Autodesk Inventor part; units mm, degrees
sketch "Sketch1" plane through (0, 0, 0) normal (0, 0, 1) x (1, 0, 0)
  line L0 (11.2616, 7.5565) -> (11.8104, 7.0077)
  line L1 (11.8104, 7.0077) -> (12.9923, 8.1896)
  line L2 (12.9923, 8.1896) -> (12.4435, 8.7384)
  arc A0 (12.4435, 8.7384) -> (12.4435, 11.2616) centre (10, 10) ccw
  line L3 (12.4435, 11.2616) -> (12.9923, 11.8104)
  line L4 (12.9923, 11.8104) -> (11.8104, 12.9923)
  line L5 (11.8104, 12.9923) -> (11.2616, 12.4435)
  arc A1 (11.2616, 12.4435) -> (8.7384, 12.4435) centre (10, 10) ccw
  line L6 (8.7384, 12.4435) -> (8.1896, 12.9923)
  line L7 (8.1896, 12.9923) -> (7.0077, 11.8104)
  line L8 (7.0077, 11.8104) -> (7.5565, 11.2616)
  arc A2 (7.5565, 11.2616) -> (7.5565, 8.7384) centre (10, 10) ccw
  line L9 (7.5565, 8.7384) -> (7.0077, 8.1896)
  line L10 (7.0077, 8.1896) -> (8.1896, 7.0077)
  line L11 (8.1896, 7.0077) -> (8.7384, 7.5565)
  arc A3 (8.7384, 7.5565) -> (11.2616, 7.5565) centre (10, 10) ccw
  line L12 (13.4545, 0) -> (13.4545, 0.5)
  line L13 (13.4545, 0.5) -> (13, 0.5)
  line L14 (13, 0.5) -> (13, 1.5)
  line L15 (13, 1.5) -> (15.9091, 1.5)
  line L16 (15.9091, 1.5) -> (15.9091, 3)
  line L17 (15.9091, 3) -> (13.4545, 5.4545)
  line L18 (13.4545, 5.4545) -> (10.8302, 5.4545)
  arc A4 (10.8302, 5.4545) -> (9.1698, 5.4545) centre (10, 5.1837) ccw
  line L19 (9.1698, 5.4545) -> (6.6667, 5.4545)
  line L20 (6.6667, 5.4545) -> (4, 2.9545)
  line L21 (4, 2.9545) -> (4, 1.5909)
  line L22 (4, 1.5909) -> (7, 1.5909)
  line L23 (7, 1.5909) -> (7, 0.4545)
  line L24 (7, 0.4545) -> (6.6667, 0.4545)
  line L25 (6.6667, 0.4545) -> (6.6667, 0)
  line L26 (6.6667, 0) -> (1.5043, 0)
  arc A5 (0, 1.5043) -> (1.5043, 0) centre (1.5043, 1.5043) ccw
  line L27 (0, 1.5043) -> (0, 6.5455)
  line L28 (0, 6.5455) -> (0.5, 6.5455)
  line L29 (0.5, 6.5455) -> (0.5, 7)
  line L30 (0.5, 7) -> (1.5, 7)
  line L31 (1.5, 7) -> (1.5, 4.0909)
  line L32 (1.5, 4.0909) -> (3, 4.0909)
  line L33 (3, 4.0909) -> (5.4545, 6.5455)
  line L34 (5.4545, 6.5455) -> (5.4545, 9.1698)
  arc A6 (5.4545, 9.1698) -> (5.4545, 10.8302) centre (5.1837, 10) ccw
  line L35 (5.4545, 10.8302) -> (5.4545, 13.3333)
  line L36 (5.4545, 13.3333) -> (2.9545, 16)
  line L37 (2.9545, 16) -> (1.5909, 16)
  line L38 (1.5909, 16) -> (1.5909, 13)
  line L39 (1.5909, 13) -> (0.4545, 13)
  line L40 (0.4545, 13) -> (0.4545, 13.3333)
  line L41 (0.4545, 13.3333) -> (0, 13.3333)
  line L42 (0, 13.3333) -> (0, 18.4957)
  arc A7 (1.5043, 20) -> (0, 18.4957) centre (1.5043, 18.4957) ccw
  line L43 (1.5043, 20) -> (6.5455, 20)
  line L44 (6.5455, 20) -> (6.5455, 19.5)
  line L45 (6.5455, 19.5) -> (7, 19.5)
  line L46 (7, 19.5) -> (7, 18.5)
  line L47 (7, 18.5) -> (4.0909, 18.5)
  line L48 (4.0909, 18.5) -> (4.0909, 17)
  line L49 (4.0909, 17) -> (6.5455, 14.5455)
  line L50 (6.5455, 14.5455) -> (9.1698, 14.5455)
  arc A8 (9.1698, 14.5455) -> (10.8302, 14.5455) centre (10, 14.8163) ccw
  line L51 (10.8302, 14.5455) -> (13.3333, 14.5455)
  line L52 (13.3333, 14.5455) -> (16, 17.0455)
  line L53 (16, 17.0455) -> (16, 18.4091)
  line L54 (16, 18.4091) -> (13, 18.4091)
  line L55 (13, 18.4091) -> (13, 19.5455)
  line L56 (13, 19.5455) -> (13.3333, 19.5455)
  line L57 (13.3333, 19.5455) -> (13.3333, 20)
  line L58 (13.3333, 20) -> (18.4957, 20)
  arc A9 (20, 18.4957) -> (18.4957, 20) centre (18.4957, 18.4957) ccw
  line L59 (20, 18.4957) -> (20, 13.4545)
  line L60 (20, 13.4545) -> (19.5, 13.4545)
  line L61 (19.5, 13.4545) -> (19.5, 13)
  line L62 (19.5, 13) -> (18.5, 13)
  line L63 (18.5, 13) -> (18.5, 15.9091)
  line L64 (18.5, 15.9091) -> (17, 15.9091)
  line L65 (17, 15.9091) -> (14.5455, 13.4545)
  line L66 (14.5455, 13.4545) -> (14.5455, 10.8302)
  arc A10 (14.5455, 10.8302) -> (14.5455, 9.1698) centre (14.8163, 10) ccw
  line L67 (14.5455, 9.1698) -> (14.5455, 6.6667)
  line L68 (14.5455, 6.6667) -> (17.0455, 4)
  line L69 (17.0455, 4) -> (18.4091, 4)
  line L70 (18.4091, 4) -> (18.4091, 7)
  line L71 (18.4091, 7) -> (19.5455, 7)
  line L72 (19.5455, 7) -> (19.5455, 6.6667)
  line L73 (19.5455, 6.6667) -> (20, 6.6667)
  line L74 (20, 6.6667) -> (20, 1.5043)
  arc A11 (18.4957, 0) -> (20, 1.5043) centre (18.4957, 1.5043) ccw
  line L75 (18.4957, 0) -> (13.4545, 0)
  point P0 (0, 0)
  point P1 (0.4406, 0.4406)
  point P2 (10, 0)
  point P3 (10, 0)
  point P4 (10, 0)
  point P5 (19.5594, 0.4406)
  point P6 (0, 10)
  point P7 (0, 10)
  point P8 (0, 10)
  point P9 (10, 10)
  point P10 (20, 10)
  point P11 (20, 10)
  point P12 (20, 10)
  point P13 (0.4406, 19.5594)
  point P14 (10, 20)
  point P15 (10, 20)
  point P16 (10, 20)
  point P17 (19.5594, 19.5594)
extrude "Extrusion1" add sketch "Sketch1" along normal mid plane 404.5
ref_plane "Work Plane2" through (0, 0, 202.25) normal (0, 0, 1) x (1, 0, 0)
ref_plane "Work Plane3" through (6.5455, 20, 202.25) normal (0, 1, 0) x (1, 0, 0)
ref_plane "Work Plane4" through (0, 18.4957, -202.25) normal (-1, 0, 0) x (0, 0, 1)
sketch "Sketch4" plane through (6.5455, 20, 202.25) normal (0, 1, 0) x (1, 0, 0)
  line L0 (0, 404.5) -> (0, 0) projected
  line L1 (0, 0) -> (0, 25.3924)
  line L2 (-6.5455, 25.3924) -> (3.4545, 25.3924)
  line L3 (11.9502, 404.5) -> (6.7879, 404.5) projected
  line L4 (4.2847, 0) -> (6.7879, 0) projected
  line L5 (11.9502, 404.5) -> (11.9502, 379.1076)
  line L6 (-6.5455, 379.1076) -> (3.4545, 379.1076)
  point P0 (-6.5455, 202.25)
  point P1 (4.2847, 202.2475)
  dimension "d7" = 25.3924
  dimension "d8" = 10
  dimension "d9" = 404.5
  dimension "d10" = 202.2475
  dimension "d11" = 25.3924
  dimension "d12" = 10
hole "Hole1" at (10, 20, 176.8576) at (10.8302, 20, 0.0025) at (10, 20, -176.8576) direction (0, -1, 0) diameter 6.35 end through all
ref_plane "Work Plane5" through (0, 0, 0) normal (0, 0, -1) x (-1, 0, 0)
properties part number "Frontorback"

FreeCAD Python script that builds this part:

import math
import FreeCAD as App
import Part
import Sketcher
Q = App.Units.Quantity

doc = App.newDocument("Part")
body = doc.addObject("PartDesign::Body", "Body")

# Sketch on XY plane
sketch1 = body.newObject("Sketcher::SketchObject", "Sketch")
sketch1.AttachmentSupport = (doc.getObject("XY_Plane"), [""])
sketch1.MapMode = "FlatFace"
sketch1.addGeometry(Part.LineSegment(App.Vector(13.45, 0.5, 0), App.Vector(13.45, 0, 0)), False)
sketch1.addGeometry(Part.LineSegment(App.Vector(13.45, 0, 0), App.Vector(18.5, 0, 0)), False)
sketch1.addGeometry(Part.ArcOfCircle(Part.Circle(App.Vector(18.5, 1.5, 0), App.Vector(0, 0, 1), 1.5), math.radians(-90), math.radians(0)), False)
sketch1.addGeometry(Part.LineSegment(App.Vector(20, 1.5, 0), App.Vector(20, 6.67, 0)), False)
sketch1.addGeometry(Part.LineSegment(App.Vector(20, 6.67, 0), App.Vector(19.55, 6.67, 0)), False)
sketch1.addGeometry(Part.LineSegment(App.Vector(19.55, 6.67, 0), App.Vector(19.55, 7, 0)), False)
sketch1.addGeometry(Part.LineSegment(App.Vector(19.55, 7, 0), App.Vector(18.41, 7, 0)), False)
sketch1.addGeometry(Part.LineSegment(App.Vector(18.41, 7, 0), App.Vector(18.41, 4, 0)), False)
sketch1.addGeometry(Part.LineSegment(App.Vector(18.41, 4, 0), App.Vector(17.05, 4, 0)), False)
sketch1.addGeometry(Part.LineSegment(App.Vector(17.05, 4, 0), App.Vector(14.55, 6.67, 0)), False)
sketch1.addGeometry(Part.LineSegment(App.Vector(14.55, 6.67, 0), App.Vector(14.55, 9.17, 0)), False)
sketch1.addGeometry(Part.ArcOfCircle(Part.Circle(App.Vector(14.82, 10, 0), App.Vector(0, 0, 1), 0.87), math.radians(108), math.radians(252)), False)
sketch1.addGeometry(Part.LineSegment(App.Vector(14.55, 10.83, 0), App.Vector(14.55, 13.45, 0)), False)
sketch1.addGeometry(Part.LineSegment(App.Vector(14.55, 13.45, 0), App.Vector(17, 15.91, 0)), False)
sketch1.addGeometry(Part.LineSegment(App.Vector(17, 15.91, 0), App.Vector(18.5, 15.91, 0)), False)
sketch1.addGeometry(Part.LineSegment(App.Vector(18.5, 15.91, 0), App.Vector(18.5, 13, 0)), False)
sketch1.addGeometry(Part.LineSegment(App.Vector(18.5, 13, 0), App.Vector(19.5, 13, 0)), False)
sketch1.addGeometry(Part.LineSegment(App.Vector(19.5, 13, 0), App.Vector(19.5, 13.45, 0)), False)
sketch1.addGeometry(Part.LineSegment(App.Vector(19.5, 13.45, 0), App.Vector(20, 13.45, 0)), False)
sketch1.addGeometry(Part.LineSegment(App.Vector(20, 13.45, 0), App.Vector(20, 18.5, 0)), False)
sketch1.addGeometry(Part.ArcOfCircle(Part.Circle(App.Vector(18.5, 18.5, 0), App.Vector(0, 0, 1), 1.5), math.radians(0), math.radians(90)), False)
sketch1.addGeometry(Part.LineSegment(App.Vector(18.5, 20, 0), App.Vector(13.33, 20, 0)), False)
sketch1.addGeometry(Part.LineSegment(App.Vector(13.33, 20, 0), App.Vector(13.33, 19.55, 0)), False)
sketch1.addGeometry(Part.LineSegment(App.Vector(13.33, 19.55, 0), App.Vector(13, 19.55, 0)), False)
sketch1.addGeometry(Part.LineSegment(App.Vector(13, 19.55, 0), App.Vector(13, 18.41, 0)), False)
sketch1.addGeometry(Part.LineSegment(App.Vector(13, 18.41, 0), App.Vector(16, 18.41, 0)), False)
sketch1.addGeometry(Part.LineSegment(App.Vector(16, 18.41, 0), App.Vector(16, 17.05, 0)), False)
sketch1.addGeometry(Part.LineSegment(App.Vector(16, 17.05, 0), App.Vector(13.33, 14.55, 0)), False)
sketch1.addGeometry(Part.LineSegment(App.Vector(13.33, 14.55, 0), App.Vector(10.83, 14.55, 0)), False)
sketch1.addGeometry(Part.ArcOfCircle(Part.Circle(App.Vector(10, 14.82, 0), App.Vector(0, 0, 1), 0.87), math.radians(-162), math.radians(-18)), False)
sketch1.addGeometry(Part.LineSegment(App.Vector(9.17, 14.55, 0), App.Vector(6.55, 14.55, 0)), False)
sketch1.addGeometry(Part.LineSegment(App.Vector(6.55, 14.55, 0), App.Vector(4.09, 17, 0)), False)
sketch1.addGeometry(Part.LineSegment(App.Vector(4.09, 17, 0), App.Vector(4.09, 18.5, 0)), False)
sketch1.addGeometry(Part.LineSegment(App.Vector(4.09, 18.5, 0), App.Vector(7, 18.5, 0)), False)
sketch1.addGeometry(Part.LineSegment(App.Vector(7, 18.5, 0), App.Vector(7, 19.5, 0)), False)
sketch1.addGeometry(Part.LineSegment(App.Vector(7, 19.5, 0), App.Vector(6.55, 19.5, 0)), False)
sketch1.addGeometry(Part.LineSegment(App.Vector(6.55, 19.5, 0), App.Vector(6.55, 20, 0)), False)
sketch1.addGeometry(Part.LineSegment(App.Vector(6.55, 20, 0), App.Vector(1.5, 20, 0)), False)
sketch1.addGeometry(Part.ArcOfCircle(Part.Circle(App.Vector(1.5, 18.5, 0), App.Vector(0, 0, 1), 1.5), math.radians(90), math.radians(180)), False)
sketch1.addGeometry(Part.LineSegment(App.Vector(0, 18.5, 0), App.Vector(0, 13.33, 0)), False)
sketch1.addGeometry(Part.LineSegment(App.Vector(0, 13.33, 0), App.Vector(0.45, 13.33, 0)), False)
sketch1.addGeometry(Part.LineSegment(App.Vector(0.45, 13.33, 0), App.Vector(0.45, 13, 0)), False)
sketch1.addGeometry(Part.LineSegment(App.Vector(0.45, 13, 0), App.Vector(1.59, 13, 0)), False)
sketch1.addGeometry(Part.LineSegment(App.Vector(1.59, 13, 0), App.Vector(1.59, 16, 0)), False)
sketch1.addGeometry(Part.LineSegment(App.Vector(1.59, 16, 0), App.Vector(2.95, 16, 0)), False)
sketch1.addGeometry(Part.LineSegment(App.Vector(2.95, 16, 0), App.Vector(5.45, 13.33, 0)), False)
sketch1.addGeometry(Part.LineSegment(App.Vector(5.45, 13.33, 0), App.Vector(5.45, 10.83, 0)), False)
sketch1.addGeometry(Part.ArcOfCircle(Part.Circle(App.Vector(5.18, 10, 0), App.Vector(0, 0, 1), 0.87), math.radians(-72), math.radians(72)), False)
sketch1.addGeometry(Part.LineSegment(App.Vector(5.45, 9.17, 0), App.Vector(5.45, 6.55, 0)), False)
sketch1.addGeometry(Part.LineSegment(App.Vector(5.45, 6.55, 0), App.Vector(3, 4.09, 0)), False)
sketch1.addGeometry(Part.LineSegment(App.Vector(3, 4.09, 0), App.Vector(1.5, 4.09, 0)), False)
sketch1.addGeometry(Part.LineSegment(App.Vector(1.5, 4.09, 0), App.Vector(1.5, 7, 0)), False)
sketch1.addGeometry(Part.LineSegment(App.Vector(1.5, 7, 0), App.Vector(0.5, 7, 0)), False)
sketch1.addGeometry(Part.LineSegment(App.Vector(0.5, 7, 0), App.Vector(0.5, 6.55, 0)), False)
sketch1.addGeometry(Part.LineSegment(App.Vector(0.5, 6.55, 0), App.Vector(0, 6.55, 0)), False)
sketch1.addGeometry(Part.LineSegment(App.Vector(0, 6.55, 0), App.Vector(0, 1.5, 0)), False)
sketch1.addGeometry(Part.ArcOfCircle(Part.Circle(App.Vector(1.5, 1.5, 0), App.Vector(0, 0, 1), 1.5), math.radians(180), math.radians(270)), False)
sketch1.addGeometry(Part.LineSegment(App.Vector(1.5, 0, 0), App.Vector(6.67, 0, 0)), False)
sketch1.addGeometry(Part.LineSegment(App.Vector(6.67, 0, 0), App.Vector(6.67, 0.45, 0)), False)
sketch1.addGeometry(Part.LineSegment(App.Vector(6.67, 0.45, 0), App.Vector(7, 0.45, 0)), False)
sketch1.addGeometry(Part.LineSegment(App.Vector(7, 0.45, 0), App.Vector(7, 1.59, 0)), False)
sketch1.addGeometry(Part.LineSegment(App.Vector(7, 1.59, 0), App.Vector(4, 1.59, 0)), False)
sketch1.addGeometry(Part.LineSegment(App.Vector(4, 1.59, 0), App.Vector(4, 2.95, 0)), False)
sketch1.addGeometry(Part.LineSegment(App.Vector(4, 2.95, 0), App.Vector(6.67, 5.45, 0)), False)
sketch1.addGeometry(Part.LineSegment(App.Vector(6.67, 5.45, 0), App.Vector(9.17, 5.45, 0)), False)
sketch1.addGeometry(Part.ArcOfCircle(Part.Circle(App.Vector(10, 5.18, 0), App.Vector(0, 0, 1), 0.87), math.radians(18), math.radians(162)), False)
sketch1.addGeometry(Part.LineSegment(App.Vector(10.83, 5.45, 0), App.Vector(13.45, 5.45, 0)), False)
sketch1.addGeometry(Part.LineSegment(App.Vector(13.45, 5.45, 0), App.Vector(15.91, 3, 0)), False)
sketch1.addGeometry(Part.LineSegment(App.Vector(15.91, 3, 0), App.Vector(15.91, 1.5, 0)), False)
sketch1.addGeometry(Part.LineSegment(App.Vector(15.91, 1.5, 0), App.Vector(13, 1.5, 0)), False)
sketch1.addGeometry(Part.LineSegment(App.Vector(13, 1.5, 0), App.Vector(13, 0.5, 0)), False)
sketch1.addGeometry(Part.LineSegment(App.Vector(13, 0.5, 0), App.Vector(13.45, 0.5, 0)), False)
sketch1.addGeometry(Part.LineSegment(App.Vector(11.81, 7.01, 0), App.Vector(11.26, 7.56, 0)), False)
sketch1.addGeometry(Part.ArcOfCircle(Part.Circle(App.Vector(10, 10, 0), App.Vector(0, 0, 1), 2.75), math.radians(-117), math.radians(-63)), False)
sketch1.addGeometry(Part.LineSegment(App.Vector(8.74, 7.56, 0), App.Vector(8.19, 7.01, 0)), False)
sketch1.addGeometry(Part.LineSegment(App.Vector(8.19, 7.01, 0), App.Vector(7.01, 8.19, 0)), False)
sketch1.addGeometry(Part.LineSegment(App.Vector(7.01, 8.19, 0), App.Vector(7.56, 8.74, 0)), False)
sketch1.addGeometry(Part.ArcOfCircle(Part.Circle(App.Vector(10, 10, 0), App.Vector(0, 0, 1), 2.75), math.radians(153), math.radians(207)), False)
sketch1.addGeometry(Part.LineSegment(App.Vector(7.56, 11.26, 0), App.Vector(7.01, 11.81, 0)), False)
sketch1.addGeometry(Part.LineSegment(App.Vector(7.01, 11.81, 0), App.Vector(8.19, 12.99, 0)), False)
sketch1.addGeometry(Part.LineSegment(App.Vector(8.19, 12.99, 0), App.Vector(8.74, 12.44, 0)), False)
sketch1.addGeometry(Part.ArcOfCircle(Part.Circle(App.Vector(10, 10, 0), App.Vector(0, 0, 1), 2.75), math.radians(63), math.radians(117)), False)
sketch1.addGeometry(Part.LineSegment(App.Vector(11.26, 12.44, 0), App.Vector(11.81, 12.99, 0)), False)
sketch1.addGeometry(Part.LineSegment(App.Vector(11.81, 12.99, 0), App.Vector(12.99, 11.81, 0)), False)
sketch1.addGeometry(Part.LineSegment(App.Vector(12.99, 11.81, 0), App.Vector(12.44, 11.26, 0)), False)
sketch1.addGeometry(Part.ArcOfCircle(Part.Circle(App.Vector(10, 10, 0), App.Vector(0, 0, 1), 2.75), math.radians(-27), math.radians(27)), False)
sketch1.addGeometry(Part.LineSegment(App.Vector(12.44, 8.74, 0), App.Vector(12.99, 8.19, 0)), False)
sketch1.addGeometry(Part.LineSegment(App.Vector(12.99, 8.19, 0), App.Vector(11.81, 7.01, 0)), False)
sketch1.addConstraint(Sketcher.Constraint("Coincident", 0, 2, 1, 1))
sketch1.addConstraint(Sketcher.Constraint("Tangent", 1, 2, 2, 1))
sketch1.addConstraint(Sketcher.Constraint("Tangent", 2, 2, 3, 1))
sketch1.addConstraint(Sketcher.Constraint("Coincident", 3, 2, 4, 1))
sketch1.addConstraint(Sketcher.Constraint("Coincident", 4, 2, 5, 1))
sketch1.addConstraint(Sketcher.Constraint("Coincident", 5, 2, 6, 1))
sketch1.addConstraint(Sketcher.Constraint("Coincident", 6, 2, 7, 1))
sketch1.addConstraint(Sketcher.Constraint("Coincident", 7, 2, 8, 1))
sketch1.addConstraint(Sketcher.Constraint("Coincident", 8, 2, 9, 1))
sketch1.addConstraint(Sketcher.Constraint("Coincident", 9, 2, 10, 1))
sketch1.addConstraint(Sketcher.Constraint("Coincident", 10, 2, 11, 2))
sketch1.addConstraint(Sketcher.Constraint("Coincident", 11, 1, 12, 1))
sketch1.addConstraint(Sketcher.Constraint("Coincident", 12, 2, 13, 1))
sketch1.addConstraint(Sketcher.Constraint("Coincident", 13, 2, 14, 1))
sketch1.addConstraint(Sketcher.Constraint("Coincident", 14, 2, 15, 1))
sketch1.addConstraint(Sketcher.Constraint("Coincident", 15, 2, 16, 1))
sketch1.addConstraint(Sketcher.Constraint("Coincident", 16, 2, 17, 1))
sketch1.addConstraint(Sketcher.Constraint("Coincident", 17, 2, 18, 1))
sketch1.addConstraint(Sketcher.Constraint("Coincident", 18, 2, 19, 1))
sketch1.addConstraint(Sketcher.Constraint("Tangent", 19, 2, 20, 1))
sketch1.addConstraint(Sketcher.Constraint("Tangent", 20, 2, 21, 1))
sketch1.addConstraint(Sketcher.Constraint("Coincident", 21, 2, 22, 1))
sketch1.addConstraint(Sketcher.Constraint("Coincident", 22, 2, 23, 1))
sketch1.addConstraint(Sketcher.Constraint("Coincident", 23, 2, 24, 1))
sketch1.addConstraint(Sketcher.Constraint("Coincident", 24, 2, 25, 1))
sketch1.addConstraint(Sketcher.Constraint("Coincident", 25, 2, 26, 1))
sketch1.addConstraint(Sketcher.Constraint("Coincident", 26, 2, 27, 1))
sketch1.addConstraint(Sketcher.Constraint("Coincident", 27, 2, 28, 1))
sketch1.addConstraint(Sketcher.Constraint("Coincident", 28, 2, 29, 2))
sketch1.addConstraint(Sketcher.Constraint("Coincident", 29, 1, 30, 1))
sketch1.addConstraint(Sketcher.Constraint("Coincident", 30, 2, 31, 1))
sketch1.addConstraint(Sketcher.Constraint("Coincident", 31, 2, 32, 1))
sketch1.addConstraint(Sketcher.Constraint("Coincident", 32, 2, 33, 1))
sketch1.addConstraint(Sketcher.Constraint("Coincident", 33, 2, 34, 1))
sketch1.addConstraint(Sketcher.Constraint("Coincident", 34, 2, 35, 1))
sketch1.addConstraint(Sketcher.Constraint("Coincident", 35, 2, 36, 1))
sketch1.addConstraint(Sketcher.Constraint("Coincident", 36, 2, 37, 1))
sketch1.addConstraint(Sketcher.Constraint("Tangent", 37, 2, 38, 1))
sketch1.addConstraint(Sketcher.Constraint("Tangent", 38, 2, 39, 1))
sketch1.addConstraint(Sketcher.Constraint("Coincident", 39, 2, 40, 1))
sketch1.addConstraint(Sketcher.Constraint("Coincident", 40, 2, 41, 1))
sketch1.addConstraint(Sketcher.Constraint("Coincident", 41, 2, 42, 1))
sketch1.addConstraint(Sketcher.Constraint("Coincident", 42, 2, 43, 1))
sketch1.addConstraint(Sketcher.Constraint("Coincident", 43, 2, 44, 1))
sketch1.addConstraint(Sketcher.Constraint("Coincident", 44, 2, 45, 1))
sketch1.addConstraint(Sketcher.Constraint("Coincident", 45, 2, 46, 1))
sketch1.addConstraint(Sketcher.Constraint("Coincident", 46, 2, 47, 2))
sketch1.addConstraint(Sketcher.Constraint("Coincident", 47, 1, 48, 1))
sketch1.addConstraint(Sketcher.Constraint("Coincident", 48, 2, 49, 1))
sketch1.addConstraint(Sketcher.Constraint("Coincident", 49, 2, 50, 1))
sketch1.addConstraint(Sketcher.Constraint("Coincident", 50, 2, 51, 1))
sketch1.addConstraint(Sketcher.Constraint("Coincident", 51, 2, 52, 1))
sketch1.addConstraint(Sketcher.Constraint("Coincident", 52, 2, 53, 1))
sketch1.addConstraint(Sketcher.Constraint("Coincident", 53, 2, 54, 1))
sketch1.addConstraint(Sketcher.Constraint("Coincident", 54, 2, 55, 1))
sketch1.addConstraint(Sketcher.Constraint("Tangent", 55, 2, 56, 1))
sketch1.addConstraint(Sketcher.Constraint("Tangent", 56, 2, 57, 1))
sketch1.addConstraint(Sketcher.Constraint("Coincident", 57, 2, 58, 1))
sketch1.addConstraint(Sketcher.Constraint("Coincident", 58, 2, 59, 1))
sketch1.addConstraint(Sketcher.Constraint("Coincident", 59, 2, 60, 1))
sketch1.addConstraint(Sketcher.Constraint("Coincident", 60, 2, 61, 1))
sketch1.addConstraint(Sketcher.Constraint("Coincident", 61, 2, 62, 1))
sketch1.addConstraint(Sketcher.Constraint("Coincident", 62, 2, 63, 1))
sketch1.addConstraint(Sketcher.Constraint("Coincident", 63, 2, 64, 1))
sketch1.addConstraint(Sketcher.Constraint("Coincident", 64, 2, 65, 2))
sketch1.addConstraint(Sketcher.Constraint("Coincident", 65, 1, 66, 1))
sketch1.addConstraint(Sketcher.Constraint("Coincident", 66, 2, 67, 1))
sketch1.addConstraint(Sketcher.Constraint("Coincident", 67, 2, 68, 1))
sketch1.addConstraint(Sketcher.Constraint("Coincident", 68, 2, 69, 1))
sketch1.addConstraint(Sketcher.Constraint("Coincident", 69, 2, 70, 1))
sketch1.addConstraint(Sketcher.Constraint("Coincident", 70, 2, 71, 1))
sketch1.addConstraint(Sketcher.Constraint("Coincident", 71, 2, 0, 1))
sketch1.addConstraint(Sketcher.Constraint("Coincident", 72, 2, 73, 2))
sketch1.addConstraint(Sketcher.Constraint("Coincident", 73, 1, 74, 1))
sketch1.addConstraint(Sketcher.Constraint("Coincident", 74, 2, 75, 1))
sketch1.addConstraint(Sketcher.Constraint("Coincident", 75, 2, 76, 1))
sketch1.addConstraint(Sketcher.Constraint("Coincident", 76, 2, 77, 2))
sketch1.addConstraint(Sketcher.Constraint("Coincident", 77, 1, 78, 1))
sketch1.addConstraint(Sketcher.Constraint("Coincident", 78, 2, 79, 1))
sketch1.addConstraint(Sketcher.Constraint("Coincident", 79, 2, 80, 1))
sketch1.addConstraint(Sketcher.Constraint("Coincident", 80, 2, 81, 2))
sketch1.addConstraint(Sketcher.Constraint("Coincident", 81, 1, 82, 1))
sketch1.addConstraint(Sketcher.Constraint("Coincident", 82, 2, 83, 1))
sketch1.addConstraint(Sketcher.Constraint("Coincident", 83, 2, 84, 1))
sketch1.addConstraint(Sketcher.Constraint("Coincident", 84, 2, 85, 2))
sketch1.addConstraint(Sketcher.Constraint("Coincident", 85, 1, 86, 1))
sketch1.addConstraint(Sketcher.Constraint("Coincident", 86, 2, 87, 1))
sketch1.addConstraint(Sketcher.Constraint("Coincident", 87, 2, 72, 1))
sketch1.addConstraint(Sketcher.Constraint("Vertical", 0))
sketch1.addConstraint(Sketcher.Constraint("Horizontal", 1))
sketch1.addConstraint(Sketcher.Constraint("Vertical", 3))
sketch1.addConstraint(Sketcher.Constraint("Horizontal", 4))
sketch1.addConstraint(Sketcher.Constraint("Vertical", 5))
sketch1.addConstraint(Sketcher.Constraint("Horizontal", 6))
sketch1.addConstraint(Sketcher.Constraint("Vertical", 7))
sketch1.addConstraint(Sketcher.Constraint("Horizontal", 8))
sketch1.addConstraint(Sketcher.Constraint("Vertical", 10))
sketch1.addConstraint(Sketcher.Constraint("Vertical", 12))
sketch1.addConstraint(Sketcher.Constraint("Horizontal", 14))
sketch1.addConstraint(Sketcher.Constraint("Vertical", 15))
sketch1.addConstraint(Sketcher.Constraint("Horizontal", 16))
sketch1.addConstraint(Sketcher.Constraint("Vertical", 17))
sketch1.addConstraint(Sketcher.Constraint("Horizontal", 18))
sketch1.addConstraint(Sketcher.Constraint("Vertical", 19))
sketch1.addConstraint(Sketcher.Constraint("Horizontal", 21))
sketch1.addConstraint(Sketcher.Constraint("Vertical", 22))
sketch1.addConstraint(Sketcher.Constraint("Horizontal", 23))
sketch1.addConstraint(Sketcher.Constraint("Vertical", 24))
sketch1.addConstraint(Sketcher.Constraint("Horizontal", 25))
sketch1.addConstraint(Sketcher.Constraint("Vertical", 26))
sketch1.addConstraint(Sketcher.Constraint("Horizontal", 28))
sketch1.addConstraint(Sketcher.Constraint("Horizontal", 30))
sketch1.addConstraint(Sketcher.Constraint("Vertical", 32))
sketch1.addConstraint(Sketcher.Constraint("Horizontal", 33))
sketch1.addConstraint(Sketcher.Constraint("Vertical", 34))
sketch1.addConstraint(Sketcher.Constraint("Horizontal", 35))
sketch1.addConstraint(Sketcher.Constraint("Vertical", 36))
sketch1.addConstraint(Sketcher.Constraint("Horizontal", 37))
sketch1.addConstraint(Sketcher.Constraint("Vertical", 39))
sketch1.addConstraint(Sketcher.Constraint("Horizontal", 40))
sketch1.addConstraint(Sketcher.Constraint("Vertical", 41))
sketch1.addConstraint(Sketcher.Constraint("Horizontal", 42))
sketch1.addConstraint(Sketcher.Constraint("Vertical", 43))
sketch1.addConstraint(Sketcher.Constraint("Horizontal", 44))
sketch1.addConstraint(Sketcher.Constraint("Vertical", 46))
sketch1.addConstraint(Sketcher.Constraint("Vertical", 48))
sketch1.addConstraint(Sketcher.Constraint("Horizontal", 50))
sketch1.addConstraint(Sketcher.Constraint("Vertical", 51))
sketch1.addConstraint(Sketcher.Constraint("Horizontal", 52))
sketch1.addConstraint(Sketcher.Constraint("Vertical", 53))
sketch1.addConstraint(Sketcher.Constraint("Horizontal", 54))
sketch1.addConstraint(Sketcher.Constraint("Vertical", 55))
sketch1.addConstraint(Sketcher.Constraint("Horizontal", 57))
sketch1.addConstraint(Sketcher.Constraint("Vertical", 58))
sketch1.addConstraint(Sketcher.Constraint("Horizontal", 59))
sketch1.addConstraint(Sketcher.Constraint("Vertical", 60))
sketch1.addConstraint(Sketcher.Constraint("Horizontal", 61))
sketch1.addConstraint(Sketcher.Constraint("Vertical", 62))
sketch1.addConstraint(Sketcher.Constraint("Horizontal", 64))
sketch1.addConstraint(Sketcher.Constraint("Horizontal", 66))
sketch1.addConstraint(Sketcher.Constraint("Vertical", 68))
sketch1.addConstraint(Sketcher.Constraint("Horizontal", 69))
sketch1.addConstraint(Sketcher.Constraint("Vertical", 70))
sketch1.addConstraint(Sketcher.Constraint("Horizontal", 71))
sketch1.addConstraint(Sketcher.Constraint("Coincident", 77, 3, 73, 3))
sketch1.addConstraint(Sketcher.Constraint("Coincident", 81, 3, 73, 3))
sketch1.addConstraint(Sketcher.Constraint("Coincident", 85, 3, 73, 3))
sketch1.addConstraint(Sketcher.Constraint("Equal", 2, 20))
sketch1.addConstraint(Sketcher.Constraint("Equal", 11, 29))
sketch1.addConstraint(Sketcher.Constraint("Equal", 20, 38))
sketch1.addConstraint(Sketcher.Constraint("Equal", 29, 47))
sketch1.addConstraint(Sketcher.Constraint("Equal", 38, 56))
sketch1.addConstraint(Sketcher.Constraint("Equal", 47, 65))
sketch1.addConstraint(Sketcher.Constraint("Equal", 73, 77))
sketch1.addConstraint(Sketcher.Constraint("Equal", 77, 81))
sketch1.addConstraint(Sketcher.Constraint("Equal", 81, 85))
sketch1.addConstraint(Sketcher.Constraint("PointOnObject", 0, 2, -1))
sketch1.addConstraint(Sketcher.Constraint("PointOnObject", 38, 2, -2))
sketch1.addConstraint(Sketcher.Constraint("PointOnObject", 54, 2, -2))
sketch1.addConstraint(Sketcher.Constraint("PointOnObject", 56, 2, -1))
sketch1.addConstraint(Sketcher.Constraint("Perpendicular", 9, 27))
sketch1.addConstraint(Sketcher.Constraint("Perpendicular", 13, 31))
sketch1.addConstraint(Sketcher.Constraint("Perpendicular", 27, 45))
sketch1.addConstraint(Sketcher.Constraint("Perpendicular", 31, 49))
sketch1.addConstraint(Sketcher.Constraint("Perpendicular", 45, 63))
sketch1.addConstraint(Sketcher.Constraint("Perpendicular", 49, 67))
sketch1.addConstraint(Sketcher.Constraint("Parallel", 67, 72))
sketch1.addConstraint(Sketcher.Constraint("Perpendicular", 72, 74))
sketch1.addConstraint(Sketcher.Constraint("Perpendicular", 74, 75))
sketch1.addConstraint(Sketcher.Constraint("Perpendicular", 75, 76))
sketch1.addConstraint(Sketcher.Constraint("Perpendicular", 76, 78))
sketch1.addConstraint(Sketcher.Constraint("Perpendicular", 78, 79))
sketch1.addConstraint(Sketcher.Constraint("Perpendicular", 79, 80))
sketch1.addConstraint(Sketcher.Constraint("Perpendicular", 80, 82))
sketch1.addConstraint(Sketcher.Constraint("Perpendicular", 82, 83))
sketch1.addConstraint(Sketcher.Constraint("Perpendicular", 83, 84))
sketch1.addConstraint(Sketcher.Constraint("Perpendicular", 84, 86))
sketch1.addConstraint(Sketcher.Constraint("Perpendicular", 86, 87))
sketch1.addConstraint(Sketcher.Constraint("Horizontal", 20, 3, 38, 3))
sketch1.addConstraint(Sketcher.Constraint("Horizontal", 11, 3, 47, 3))
sketch1.addConstraint(Sketcher.Constraint("Horizontal", 47, 3, 73, 3))
sketch1.addConstraint(Sketcher.Constraint("Horizontal", 4, 2, 9, 2))
sketch1.addConstraint(Sketcher.Constraint("Horizontal", 12, 2, 17, 2))
sketch1.addConstraint(Sketcher.Constraint("Horizontal", 28, 2, 29, 1))
sketch1.addConstraint(Sketcher.Constraint("Horizontal", 16, 2, 41, 2))
sketch1.addConstraint(Sketcher.Constraint("Horizontal", 40, 2, 45, 2))
sketch1.addConstraint(Sketcher.Constraint("Horizontal", 11, 1, 46, 2))
sketch1.addConstraint(Sketcher.Constraint("Horizontal", 10, 2, 47, 1))
sketch1.addConstraint(Sketcher.Constraint("Horizontal", 6, 2, 51, 2))
sketch1.addConstraint(Sketcher.Constraint("Horizontal", 48, 2, 53, 2))
sketch1.addConstraint(Sketcher.Constraint("Horizontal", 64, 2, 65, 1))
sketch1.addConstraint(Sketcher.Constraint("Horizontal", 72, 2, 73, 1))
sketch1.addConstraint(Sketcher.Constraint("Horizontal", 80, 2, 81, 1))
sketch1.addConstraint(Sketcher.Constraint("Horizontal", 79, 2, 82, 2))
sketch1.addConstraint(Sketcher.Constraint("Horizontal", 78, 2, 83, 2))
sketch1.addConstraint(Sketcher.Constraint("Horizontal", 77, 1, 84, 2))
sketch1.addConstraint(Sketcher.Constraint("Horizontal", 76, 2, 85, 1))
sketch1.addConstraint(Sketcher.Constraint("Horizontal", 75, 2, 86, 2))
sketch1.addConstraint(Sketcher.Constraint("Vertical", 2, 3, 20, 3))
sketch1.addConstraint(Sketcher.Constraint("Vertical", 29, 3, 65, 3))
sketch1.addConstraint(Sketcher.Constraint("Vertical", 65, 3, 73, 3))
sketch1.addConstraint(Sketcher.Constraint("Vertical", 10, 2, 11, 1))
sketch1.addConstraint(Sketcher.Constraint("Vertical", 22, 2, 27, 2))
sketch1.addConstraint(Sketcher.Constraint("Vertical", 30, 2, 35, 2))
sketch1.addConstraint(Sketcher.Constraint("Vertical", 34, 2, 59, 2))
sketch1.addConstraint(Sketcher.Constraint("Vertical", 58, 2, 63, 2))
sketch1.addConstraint(Sketcher.Constraint("Vertical", 29, 1, 64, 2))
sketch1.addConstraint(Sketcher.Constraint("Vertical", 0, 2, 66, 2))
sketch1.addConstraint(Sketcher.Constraint("Vertical", 24, 2, 69, 2))
sketch1.addConstraint(Sketcher.Constraint("Vertical", 76, 2, 77, 1))
sketch1.addConstraint(Sketcher.Constraint("Vertical", 75, 2, 78, 2))
sketch1.addConstraint(Sketcher.Constraint("Vertical", 74, 2, 79, 2))
sketch1.addConstraint(Sketcher.Constraint("Equal", 4, 35))
sketch1.addConstraint(Sketcher.Constraint("Equal", 1, 37))
sketch1.addConstraint(Sketcher.Constraint("Equal", 35, 40))
sketch1.addConstraint(Sketcher.Constraint("Equal", 6, 42))
sketch1.addConstraint(Sketcher.Constraint("Equal", 8, 44))
sketch1.addConstraint(Sketcher.Constraint("Equal", 14, 50))
sketch1.addConstraint(Sketcher.Constraint("Equal", 16, 52))
sketch1.addConstraint(Sketcher.Constraint("Equal", 18, 54))
sketch1.addConstraint(Sketcher.Constraint("Equal", 21, 57))
sketch1.addConstraint(Sketcher.Constraint("Equal", 23, 59))
sketch1.addConstraint(Sketcher.Constraint("Equal", 25, 61))
sketch1.addConstraint(Sketcher.Constraint("Equal", 28, 64))
sketch1.addConstraint(Sketcher.Constraint("Equal", 33, 69))
sketch1.addConstraint(Sketcher.Constraint("Equal", 54, 0))
sketch1.addConstraint(Sketcher.Constraint("Equal", 57, 3))
sketch1.addConstraint(Sketcher.Constraint("Equal", 59, 5))
sketch1.addConstraint(Sketcher.Constraint("Equal", 61, 7))
sketch1.addConstraint(Sketcher.Constraint("Equal", 64, 10))
sketch1.addConstraint(Sketcher.Constraint("Equal", 66, 12))
sketch1.addConstraint(Sketcher.Constraint("Equal", 69, 15))
sketch1.addConstraint(Sketcher.Constraint("Equal", 71, 17))
sketch1.addConstraint(Sketcher.Constraint("Equal", 37, 19))
sketch1.addConstraint(Sketcher.Constraint("Equal", 17, 22))
sketch1.addConstraint(Sketcher.Constraint("Equal", 42, 24))
sketch1.addConstraint(Sketcher.Constraint("Equal", 44, 26))
sketch1.addConstraint(Sketcher.Constraint("Equal", 50, 32))
sketch1.addConstraint(Sketcher.Constraint("Equal", 52, 34))
sketch1.addConstraint(Sketcher.Constraint("Equal", 3, 39))
sketch1.addConstraint(Sketcher.Constraint("Equal", 7, 43))
sketch1.addConstraint(Sketcher.Constraint("Equal", 12, 48))
sketch1.addConstraint(Sketcher.Constraint("Equal", 53, 58))
sketch1.addConstraint(Sketcher.Constraint("Equal", 24, 60))
sketch1.addConstraint(Sketcher.Constraint("Equal", 26, 62))
sketch1.addConstraint(Sketcher.Constraint("Equal", 32, 68))
sketch1.addConstraint(Sketcher.Constraint("Equal", 74, 76))
sketch1.addConstraint(Sketcher.Constraint("DistanceX", 16, 1, 16, 2, Q("1 mm")))
sketch1.addConstraint(Sketcher.Constraint("DistanceX", 25, 1, 25, 2, Q("3 mm")))
sketch1.addConstraint(Sketcher.Constraint("Radius", 73, Q("2.75 mm")))
sketch1.addConstraint(Sketcher.Constraint("DistanceX", 14, 1, 14, 2, Q("1.5 mm")))
sketch1.addConstraint(Sketcher.Constraint("DistanceX", 18, 1, 18, 2, Q("0.5 mm")))
sketch1.addConstraint(Sketcher.Constraint("DistanceY", -1, 1, 11, 3, Q("10 mm")))
sketch1.addConstraint(Sketcher.Constraint("DistanceX", -1, 1, 29, 3, Q("10 mm")))
sketch1.addConstraint(Sketcher.Constraint("DistanceY", -1, 1, 5, 2, Q("7 mm")))
sketch1.addConstraint(Sketcher.Constraint("Radius", 2, Q("1.5043 mm")))
sketch1.addConstraint(Sketcher.Constraint("Radius", 11, Q("0.8732 mm")))
sketch1.addConstraint(Sketcher.Constraint("DistanceX", 28, 2, 28, 1, Q("2.503 mm")))
sketch1.addConstraint(Sketcher.Constraint("DistanceX", 33, 1, 33, 2, Q("2.909 mm")))
sketch1.addConstraint(Sketcher.Constraint("DistanceX", 1, 1, 1, 2, Q("5.0412 mm")))
sketch1.addConstraint(Sketcher.Constraint("DistanceX", 6, 2, 6, 1, Q("1.1364 mm")))
sketch1.addConstraint(Sketcher.Constraint("DistanceX", 8, 2, 8, 1, Q("1.3636 mm")))
sketch1.addConstraint(Sketcher.Constraint("DistanceX", 21, 2, 21, 1, Q("5.1624 mm")))
sketch1.addConstraint(Sketcher.Constraint("Distance", 72, Q("0.7761 mm")))
sketch1.addConstraint(Sketcher.Constraint("Distance", 75, Q("1.6715 mm")))
pad1 = body.newObject("PartDesign::Pad", "Pad")
pad1.Profile = sketch1
pad1.Length = 404.5
pad1.Midplane = True

# Sketch on XZ plane
sketch2 = body.newObject("Sketcher::SketchObject", "Sketch001")
sketch2.AttachmentSupport = (doc.getObject("XZ_Plane"), [""])
sketch2.MapMode = "FlatFace"
sketch2.AttachmentOffset = App.Placement(App.Vector(0, 0, -20), App.Rotation())
sketch2.addGeometry(Part.Circle(App.Vector(10, 176.9, 0), App.Vector(0, 0, 1), 3.2), False)
sketch2.addGeometry(Part.Circle(App.Vector(10.8, 0, 0), App.Vector(0, 0, 1), 3.2), False)
sketch2.addGeometry(Part.Circle(App.Vector(10, -176.9, 0), App.Vector(0, 0, 1), 3.2), False)
sketch2.addConstraint(Sketcher.Constraint("Equal", 0, 1))
sketch2.addConstraint(Sketcher.Constraint("Equal", 1, 2))
sketch2.addConstraint(Sketcher.Constraint("Symmetric", 0, 3, 2, 3, -1))
sketch2.addConstraint(Sketcher.Constraint("Diameter", 0, Q("6.35 mm")))
sketch2.addConstraint(Sketcher.Constraint("DistanceX", -1, 1, 0, 3, Q("10 mm")))
sketch2.addConstraint(Sketcher.Constraint("DistanceY", 2, 3, 1, 3, Q("176.86 mm")))
sketch2.addConstraint(Sketcher.Constraint("DistanceY", 1, 3, 0, 3, Q("176.855 mm")))
sketch2.addConstraint(Sketcher.Constraint("DistanceX", -1, 1, 1, 3, Q("10.8302 mm")))
doc.recompute()
hole = body.newObject("PartDesign::Hole", "Hole")
hole.Profile = sketch2
hole.ThreadType = "None"
hole.Diameter = 6.35
hole.DepthType = "ThroughAll"
hole.Reversed = True

doc.recompute()
